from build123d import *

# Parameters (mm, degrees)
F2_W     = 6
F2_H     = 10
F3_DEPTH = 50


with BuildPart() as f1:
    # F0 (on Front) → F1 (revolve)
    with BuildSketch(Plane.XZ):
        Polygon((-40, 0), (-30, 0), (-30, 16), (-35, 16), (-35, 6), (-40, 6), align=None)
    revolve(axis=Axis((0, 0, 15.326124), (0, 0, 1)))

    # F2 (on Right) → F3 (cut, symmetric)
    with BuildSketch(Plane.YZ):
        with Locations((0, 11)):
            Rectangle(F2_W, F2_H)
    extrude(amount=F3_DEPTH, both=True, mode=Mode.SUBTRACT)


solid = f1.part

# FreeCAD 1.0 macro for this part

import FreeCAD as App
import Part
import Sketcher
from FreeCAD import Vector

doc = App.newDocument("Part")
body = doc.addObject("PartDesign::Body", "Body")

sketch1 = doc.addObject("Sketcher::SketchObject", "Sketch")
body.addObject(sketch1)
sketch1.AttachmentSupport = (doc.XZ_Plane, [""])
sketch1.MapMode = "FlatFace"
sketch1.addGeometry(Part.LineSegment(Vector(-40, 0, 0), Vector(-30, 0, 0)), False)
sketch1.addGeometry(Part.LineSegment(Vector(-30, 0, 0), Vector(-30, 16, 0)), False)
sketch1.addGeometry(Part.LineSegment(Vector(-30, 16, 0), Vector(-35, 16, 0)), False)
sketch1.addGeometry(Part.LineSegment(Vector(-35, 16, 0), Vector(-35, 6, 0)), False)
sketch1.addGeometry(Part.LineSegment(Vector(-35, 6, 0), Vector(-40, 6, 0)), False)
sketch1.addGeometry(Part.LineSegment(Vector(-40, 6, 0), Vector(-40, 0, 0)), False)
sketch1.addConstraint(Sketcher.Constraint("Coincident", 0, 2, 1, 1))
sketch1.addConstraint(Sketcher.Constraint("Coincident", 1, 2, 2, 1))
sketch1.addConstraint(Sketcher.Constraint("Coincident", 2, 2, 3, 1))
sketch1.addConstraint(Sketcher.Constraint("Coincident", 3, 2, 4, 1))
sketch1.addConstraint(Sketcher.Constraint("Coincident", 4, 2, 5, 1))
sketch1.addConstraint(Sketcher.Constraint("Coincident", 5, 2, 0, 1))
sketch1.addConstraint(Sketcher.Constraint("Horizontal", 0))
sketch1.addConstraint(Sketcher.Constraint("Vertical", 1))
sketch1.addConstraint(Sketcher.Constraint("Horizontal", 2))
sketch1.addConstraint(Sketcher.Constraint("Vertical", 3))
sketch1.addConstraint(Sketcher.Constraint("Horizontal", 4))
sketch1.addConstraint(Sketcher.Constraint("Vertical", 5))
sketch1.addConstraint(Sketcher.Constraint("PointOnObject", 0, 2, -1))
sketch1.addConstraint(Sketcher.Constraint("Equal", 2, 4))
sketch1.addConstraint(Sketcher.Constraint("Equal", 0, 3))
sketch1.addConstraint(Sketcher.Constraint("DistanceX", 0, 1, 0, 2, 10.0))
sketch1.addConstraint(Sketcher.Constraint("DistanceY", 1, 1, 1, 2, 16.0))
sketch1.addConstraint(Sketcher.Constraint("DistanceX", 0, 2, -1, 1, 30.0))
revolution = doc.addObject("PartDesign::Revolution", "Revolution")
body.addObject(revolution)
revolution.Profile = sketch1
revolution.ReferenceAxis = (sketch1, ["V_Axis"])
revolution.Angle = 360

sketch2 = doc.addObject("Sketcher::SketchObject", "Sketch001")
body.addObject(sketch2)
sketch2.AttachmentSupport = (doc.YZ_Plane, [""])
sketch2.MapMode = "FlatFace"
sketch2.addGeometry(Part.LineSegment(Vector(-3, 16, 0), Vector(-3, 6, 0)), False)
sketch2.addGeometry(Part.LineSegment(Vector(-3, 6, 0), Vector(3, 6, 0)), False)
sketch2.addGeometry(Part.LineSegment(Vector(3, 6, 0), Vector(3, 16, 0)), False)
sketch2.addGeometry(Part.LineSegment(Vector(3, 16, 0), Vector(-3, 16, 0)), False)
sketch2.addConstraint(Sketcher.Constraint("Coincident", 0, 2, 1, 1))
sketch2.addConstraint(Sketcher.Constraint("Coincident", 1, 2, 2, 1))
sketch2.addConstraint(Sketcher.Constraint("Coincident", 2, 2, 3, 1))
sketch2.addConstraint(Sketcher.Constraint("Coincident", 3, 2, 0, 1))
sketch2.addConstraint(Sketcher.Constraint("Vertical", 0))
sketch2.addConstraint(Sketcher.Constraint("Horizontal", 1))
sketch2.addConstraint(Sketcher.Constraint("Vertical", 2))
sketch2.addConstraint(Sketcher.Constraint("Horizontal", 3))
sketch2.addConstraint(Sketcher.Constraint("DistanceX", 1, 1, 1, 2, 6.0))
sketch2.addConstraint(Sketcher.Constraint("DistanceY", 0, 2, 0, 1, 10.0))
sketch2.addConstraint(Sketcher.Constraint("DistanceX", 0, 2, -1, 1, 3.0))
sketch2.addConstraint(Sketcher.Constraint("DistanceY", -1, 1, 0, 2, 6.0))
pocket1 = doc.addObject("PartDesign::Pocket", "Pocket")
body.addObject(pocket1)
pocket1.Profile = sketch2
pocket1.Length = 100
pocket1.Midplane = True

doc.recompute()
